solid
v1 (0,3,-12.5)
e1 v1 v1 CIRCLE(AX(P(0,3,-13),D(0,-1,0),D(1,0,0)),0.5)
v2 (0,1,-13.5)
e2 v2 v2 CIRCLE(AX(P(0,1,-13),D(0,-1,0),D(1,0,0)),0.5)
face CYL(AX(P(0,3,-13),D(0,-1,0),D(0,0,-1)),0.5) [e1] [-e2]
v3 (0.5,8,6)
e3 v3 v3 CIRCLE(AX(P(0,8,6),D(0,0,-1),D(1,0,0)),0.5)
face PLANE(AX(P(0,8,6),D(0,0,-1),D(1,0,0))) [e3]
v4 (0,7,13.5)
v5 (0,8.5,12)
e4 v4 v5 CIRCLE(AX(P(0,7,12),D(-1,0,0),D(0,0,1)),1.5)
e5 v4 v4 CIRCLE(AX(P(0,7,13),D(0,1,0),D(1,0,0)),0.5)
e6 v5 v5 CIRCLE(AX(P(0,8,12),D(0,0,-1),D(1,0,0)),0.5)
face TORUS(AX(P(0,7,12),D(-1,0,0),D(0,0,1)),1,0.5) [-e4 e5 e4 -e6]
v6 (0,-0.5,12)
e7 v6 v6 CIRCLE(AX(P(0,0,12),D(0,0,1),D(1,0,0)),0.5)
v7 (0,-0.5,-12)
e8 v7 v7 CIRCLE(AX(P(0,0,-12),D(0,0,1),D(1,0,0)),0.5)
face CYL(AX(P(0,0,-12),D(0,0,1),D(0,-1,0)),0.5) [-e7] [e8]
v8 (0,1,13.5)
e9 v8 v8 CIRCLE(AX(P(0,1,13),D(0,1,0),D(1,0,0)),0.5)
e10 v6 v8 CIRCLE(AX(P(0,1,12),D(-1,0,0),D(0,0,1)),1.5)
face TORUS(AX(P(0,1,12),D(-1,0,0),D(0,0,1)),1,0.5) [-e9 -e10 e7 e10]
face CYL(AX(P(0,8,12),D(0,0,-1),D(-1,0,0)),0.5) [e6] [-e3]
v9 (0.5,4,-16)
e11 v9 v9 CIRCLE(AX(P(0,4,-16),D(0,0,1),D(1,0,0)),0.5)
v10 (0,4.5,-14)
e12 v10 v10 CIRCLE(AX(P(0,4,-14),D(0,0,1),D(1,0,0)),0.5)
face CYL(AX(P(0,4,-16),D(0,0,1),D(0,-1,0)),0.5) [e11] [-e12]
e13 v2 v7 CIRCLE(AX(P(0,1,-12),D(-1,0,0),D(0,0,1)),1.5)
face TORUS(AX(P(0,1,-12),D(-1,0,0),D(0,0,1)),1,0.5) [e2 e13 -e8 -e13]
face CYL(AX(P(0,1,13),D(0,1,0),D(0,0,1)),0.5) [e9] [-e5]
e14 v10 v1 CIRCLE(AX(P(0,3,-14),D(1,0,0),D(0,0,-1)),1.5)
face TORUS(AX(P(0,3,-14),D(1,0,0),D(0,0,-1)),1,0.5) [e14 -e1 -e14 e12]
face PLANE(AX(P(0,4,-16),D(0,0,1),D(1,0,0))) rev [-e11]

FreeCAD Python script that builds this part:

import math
import FreeCAD as App
import Part
import Sketcher

doc = App.newDocument("Part")
body = doc.addObject("PartDesign::Body", "Body")

# Sketch on XY plane
sketch1 = doc.addObject("Sketcher::SketchObject", "Sketch")
body.addObject(sketch1)
sketch1.AttachmentSupport = (doc.XY_Plane, [""])
sketch1.MapMode = "FlatFace"
sketch1.addGeometry(Part.Circle(App.Vector(0, 0, 0), App.Vector(0, 0, 1), 0.5), False)
sketch1.addConstraint([
    Sketcher.Constraint("Coincident", 0, 3, -1, 1),
    Sketcher.Constraint("Diameter", 0, 1.0),
])

# Sketch on YZ plane
sketch2 = doc.addObject("Sketcher::SketchObject", "Sketch001")
body.addObject(sketch2)
sketch2.AttachmentSupport = (doc.YZ_Plane, [""])
sketch2.MapMode = "FlatFace"
sketch2.addGeometry([
    Part.LineSegment(App.Vector(4, -16, 0), App.Vector(4, -14, 0)),  # 0
    Part.ArcOfCircle(Part.Circle(App.Vector(3, -14, 0), App.Vector(0, 0, 1), 1), math.radians(0), math.radians(90)),  # 1
    Part.LineSegment(App.Vector(3, -13, 0), App.Vector(1, -13, 0)),  # 2
    Part.ArcOfCircle(Part.Circle(App.Vector(1, -12, 0), App.Vector(0, 0, 1), 1), math.radians(-180), math.radians(-90)),  # 3
    Part.LineSegment(App.Vector(0, -12, 0), App.Vector(0, 12, 0)),  # 4
    Part.ArcOfCircle(Part.Circle(App.Vector(1, 12, 0), App.Vector(0, 0, 1), 1), math.radians(90), math.radians(180)),  # 5
    Part.LineSegment(App.Vector(1, 13, 0), App.Vector(7, 13, 0)),  # 6
    Part.ArcOfCircle(Part.Circle(App.Vector(7, 12, 0), App.Vector(0, 0, 1), 1), math.radians(0), math.radians(90)),  # 7
    Part.LineSegment(App.Vector(8, 12, 0), App.Vector(8, 6, 0)),  # 8
], False)
sketch2.addConstraint([
    Sketcher.Constraint("Tangent", 0, 2, 1, 1),
    Sketcher.Constraint("Tangent", 1, 2, 2, 1),
    Sketcher.Constraint("Tangent", 2, 2, 3, 2),
    Sketcher.Constraint("Tangent", 3, 1, 4, 1),
    Sketcher.Constraint("Tangent", 4, 2, 5, 2),
    Sketcher.Constraint("Tangent", 5, 1, 6, 1),
    Sketcher.Constraint("Tangent", 6, 2, 7, 2),
    Sketcher.Constraint("Tangent", 7, 1, 8, 1),
    Sketcher.Constraint("Vertical", 0),
    Sketcher.Constraint("Horizontal", 2),
    Sketcher.Constraint("Vertical", 4),
    Sketcher.Constraint("Horizontal", 6),
    Sketcher.Constraint("Vertical", 8),
    Sketcher.Constraint("Equal", 1, 3),
    Sketcher.Constraint("Equal", 3, 5),
    Sketcher.Constraint("Equal", 5, 7),
    Sketcher.Constraint("Symmetric", 3, 1, 4, 2, -1, 1),
    Sketcher.Constraint("Equal", 2, 0),
    Sketcher.Constraint("Equal", 6, 8),
    Sketcher.Constraint("Radius", 1, 1.0),
    Sketcher.Constraint("DistanceX", 2, 2, 2, 1, 2.0),
    Sketcher.Constraint("DistanceX", 6, 1, 6, 2, 6.0),
    Sketcher.Constraint("DistanceY", 4, 1, 4, 2, 24.0),
])
doc.recompute()

additivepipe = doc.addObject("PartDesign::AdditivePipe", "AdditivePipe")
body.addObject(additivepipe)
additivepipe.Profile = sketch1
additivepipe.Spine = (sketch2, ["Edge1", "Edge2", "Edge3", "Edge4", "Edge5", "Edge6", "Edge7", "Edge8", "Edge9"])

doc.recompute()
